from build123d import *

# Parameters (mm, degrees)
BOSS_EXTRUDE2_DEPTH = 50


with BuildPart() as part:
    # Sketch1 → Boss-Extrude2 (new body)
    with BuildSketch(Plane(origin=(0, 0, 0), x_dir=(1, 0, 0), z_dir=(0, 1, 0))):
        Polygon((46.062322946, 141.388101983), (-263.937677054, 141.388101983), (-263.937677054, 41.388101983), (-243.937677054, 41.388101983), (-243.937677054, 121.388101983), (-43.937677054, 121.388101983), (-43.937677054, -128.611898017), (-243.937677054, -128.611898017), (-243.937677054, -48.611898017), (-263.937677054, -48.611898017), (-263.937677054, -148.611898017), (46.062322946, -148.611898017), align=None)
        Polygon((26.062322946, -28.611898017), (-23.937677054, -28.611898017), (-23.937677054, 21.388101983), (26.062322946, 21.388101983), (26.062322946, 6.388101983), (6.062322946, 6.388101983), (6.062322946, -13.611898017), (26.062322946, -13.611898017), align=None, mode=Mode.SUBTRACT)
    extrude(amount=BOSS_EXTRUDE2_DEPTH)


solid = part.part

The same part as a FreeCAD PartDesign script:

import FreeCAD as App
import Part
import Sketcher

doc = App.newDocument("Part")
params = doc.addObject("Spreadsheet::Sheet", "Params")
for row, (alias, value) in enumerate([
    ("sketch1_width", "310 mm"),
    ("sketch1_width2", "20 mm"),
    ("sketch1_width3", "200 mm"),
    ("sketch1_width4", "50 mm"),
    ("sketch1_height", "100 mm"),
    ("pad1_length", "50 mm"),
], start=1):
    params.set(f"A{row}", alias)
    params.set(f"B{row}", "=" + value)
    params.setAlias(f"B{row}", alias)

body = doc.addObject("PartDesign::Body", "Body")

# Sketch on XZ plane
sketch1 = body.newObject("Sketcher::SketchObject", "Sketch")
sketch1.AttachmentSupport = (doc.getObject("XZ_Plane"), [""])
sketch1.MapMode = "FlatFace"
sketch1.addGeometry(Part.LineSegment(App.Vector(46, -141, 0), App.Vector(-264, -141, 0)), False)
sketch1.addGeometry(Part.LineSegment(App.Vector(-264, -141, 0), App.Vector(-264, -41, 0)), False)
sketch1.addGeometry(Part.LineSegment(App.Vector(-264, -41, 0), App.Vector(-244, -41, 0)), False)
sketch1.addGeometry(Part.LineSegment(App.Vector(-244, -41, 0), App.Vector(-244, -121, 0)), False)
sketch1.addGeometry(Part.LineSegment(App.Vector(-244, -121, 0), App.Vector(-44, -121, 0)), False)
sketch1.addGeometry(Part.LineSegment(App.Vector(-44, -121, 0), App.Vector(-44, 129, 0)), False)
sketch1.addGeometry(Part.LineSegment(App.Vector(-44, 129, 0), App.Vector(-244, 129, 0)), False)
sketch1.addGeometry(Part.LineSegment(App.Vector(-244, 129, 0), App.Vector(-244, 49, 0)), False)
sketch1.addGeometry(Part.LineSegment(App.Vector(-244, 49, 0), App.Vector(-264, 49, 0)), False)
sketch1.addGeometry(Part.LineSegment(App.Vector(-264, 49, 0), App.Vector(-264, 149, 0)), False)
sketch1.addGeometry(Part.LineSegment(App.Vector(-264, 149, 0), App.Vector(46, 149, 0)), False)
sketch1.addGeometry(Part.LineSegment(App.Vector(46, 149, 0), App.Vector(46, -141, 0)), False)
sketch1.addGeometry(Part.LineSegment(App.Vector(26, 14, 0), App.Vector(26, 29, 0)), False)
sketch1.addGeometry(Part.LineSegment(App.Vector(26, 29, 0), App.Vector(-24, 29, 0)), False)
sketch1.addGeometry(Part.LineSegment(App.Vector(-24, 29, 0), App.Vector(-24, -21, 0)), False)
sketch1.addGeometry(Part.LineSegment(App.Vector(-24, -21, 0), App.Vector(26, -21, 0)), False)
sketch1.addGeometry(Part.LineSegment(App.Vector(26, -21, 0), App.Vector(26, -6, 0)), False)
sketch1.addGeometry(Part.LineSegment(App.Vector(26, -6, 0), App.Vector(6, -6, 0)), False)
sketch1.addGeometry(Part.LineSegment(App.Vector(6, -6, 0), App.Vector(6, 14, 0)), False)
sketch1.addGeometry(Part.LineSegment(App.Vector(6, 14, 0), App.Vector(26, 14, 0)), False)
sketch1.addConstraint(Sketcher.Constraint("Coincident", 0, 2, 1, 1))
sketch1.addConstraint(Sketcher.Constraint("Coincident", 1, 2, 2, 1))
sketch1.addConstraint(Sketcher.Constraint("Coincident", 2, 2, 3, 1))
sketch1.addConstraint(Sketcher.Constraint("Coincident", 3, 2, 4, 1))
sketch1.addConstraint(Sketcher.Constraint("Coincident", 4, 2, 5, 1))
sketch1.addConstraint(Sketcher.Constraint("Coincident", 5, 2, 6, 1))
sketch1.addConstraint(Sketcher.Constraint("Coincident", 6, 2, 7, 1))
sketch1.addConstraint(Sketcher.Constraint("Coincident", 7, 2, 8, 1))
sketch1.addConstraint(Sketcher.Constraint("Coincident", 8, 2, 9, 1))
sketch1.addConstraint(Sketcher.Constraint("Coincident", 9, 2, 10, 1))
sketch1.addConstraint(Sketcher.Constraint("Coincident", 10, 2, 11, 1))
sketch1.addConstraint(Sketcher.Constraint("Coincident", 11, 2, 0, 1))
sketch1.addConstraint(Sketcher.Constraint("Coincident", 12, 2, 13, 1))
sketch1.addConstraint(Sketcher.Constraint("Coincident", 13, 2, 14, 1))
sketch1.addConstraint(Sketcher.Constraint("Coincident", 14, 2, 15, 1))
sketch1.addConstraint(Sketcher.Constraint("Coincident", 15, 2, 16, 1))
sketch1.addConstraint(Sketcher.Constraint("Coincident", 16, 2, 17, 1))
sketch1.addConstraint(Sketcher.Constraint("Coincident", 17, 2, 18, 1))
sketch1.addConstraint(Sketcher.Constraint("Coincident", 18, 2, 19, 1))
sketch1.addConstraint(Sketcher.Constraint("Coincident", 19, 2, 12, 1))
sketch1.addConstraint(Sketcher.Constraint("Horizontal", 0))
sketch1.addConstraint(Sketcher.Constraint("Vertical", 1))
sketch1.addConstraint(Sketcher.Constraint("Horizontal", 2))
sketch1.addConstraint(Sketcher.Constraint("Vertical", 3))
sketch1.addConstraint(Sketcher.Constraint("Horizontal", 4))
sketch1.addConstraint(Sketcher.Constraint("Vertical", 5))
sketch1.addConstraint(Sketcher.Constraint("Horizontal", 6))
sketch1.addConstraint(Sketcher.Constraint("Vertical", 7))
sketch1.addConstraint(Sketcher.Constraint("Horizontal", 8))
sketch1.addConstraint(Sketcher.Constraint("Vertical", 9))
sketch1.addConstraint(Sketcher.Constraint("Horizontal", 10))
sketch1.addConstraint(Sketcher.Constraint("Vertical", 11))
sketch1.addConstraint(Sketcher.Constraint("Vertical", 12))
sketch1.addConstraint(Sketcher.Constraint("Horizontal", 13))
sketch1.addConstraint(Sketcher.Constraint("Vertical", 14))
sketch1.addConstraint(Sketcher.Constraint("Horizontal", 15))
sketch1.addConstraint(Sketcher.Constraint("Vertical", 16))
sketch1.addConstraint(Sketcher.Constraint("Horizontal", 17))
sketch1.addConstraint(Sketcher.Constraint("Vertical", 18))
sketch1.addConstraint(Sketcher.Constraint("Horizontal", 19))
sketch1.addConstraint(Sketcher.Constraint("Vertical", 3, 2, 6, 2))
sketch1.addConstraint(Sketcher.Constraint("Vertical", 1, 2, 8, 2))
sketch1.addConstraint(Sketcher.Constraint("Vertical", 12, 2, 15, 2))
sketch1.addConstraint(Sketcher.Constraint("Equal", 8, 17))
sketch1.addConstraint(Sketcher.Constraint("Equal", 3, 7))
sketch1.addConstraint(Sketcher.Constraint("Equal", 1, 9))
sketch1.addConstraint(Sketcher.Constraint("Equal", 15, 14))
sketch1.addConstraint(Sketcher.Constraint("Equal", 12, 16))
sketch1.addConstraint(Sketcher.Constraint("Equal", 19, 18))
sketch1.addConstraint(Sketcher.Constraint("DistanceX", 0, 2, 0, 1, 310.0))
sketch1.addConstraint(Sketcher.Constraint("DistanceX", 2, 1, 2, 2, 20.0))
sketch1.addConstraint(Sketcher.Constraint("DistanceX", 4, 1, 4, 2, 200.0))
sketch1.addConstraint(Sketcher.Constraint("DistanceX", 13, 2, 13, 1, 50.0))
sketch1.addConstraint(Sketcher.Constraint("DistanceY", 1, 1, 1, 2, 100.0))
sketch1.addConstraint(Sketcher.Constraint("DistanceY", 3, 2, 3, 1, 80.0))
sketch1.addConstraint(Sketcher.Constraint("DistanceY", 5, 1, 5, 2, 250.0))
sketch1.addConstraint(Sketcher.Constraint("DistanceX", 12, 2, 10, 2, 20.0))
sketch1.addConstraint(Sketcher.Constraint("DistanceY", 12, 2, 10, 2, 120.0))
sketch1.addConstraint(Sketcher.Constraint("DistanceY", 0, 2, -1, 1, 141.388102))
sketch1.addConstraint(Sketcher.Constraint("DistanceX", 0, 2, -1, 1, 263.937677))
sketch1.setExpression("Constraints[49]", "Params.sketch1_width")
sketch1.setExpression("Constraints[50]", "Params.sketch1_width2")
sketch1.setExpression("Constraints[51]", "Params.sketch1_width3")
sketch1.setExpression("Constraints[52]", "Params.sketch1_width4")
sketch1.setExpression("Constraints[53]", "Params.sketch1_height")
pad1 = body.newObject("PartDesign::Pad", "Pad")
pad1.Profile = sketch1
pad1.setExpression("Length", "Params.pad1_length")
pad1.Reversed = True

doc.recompute()
